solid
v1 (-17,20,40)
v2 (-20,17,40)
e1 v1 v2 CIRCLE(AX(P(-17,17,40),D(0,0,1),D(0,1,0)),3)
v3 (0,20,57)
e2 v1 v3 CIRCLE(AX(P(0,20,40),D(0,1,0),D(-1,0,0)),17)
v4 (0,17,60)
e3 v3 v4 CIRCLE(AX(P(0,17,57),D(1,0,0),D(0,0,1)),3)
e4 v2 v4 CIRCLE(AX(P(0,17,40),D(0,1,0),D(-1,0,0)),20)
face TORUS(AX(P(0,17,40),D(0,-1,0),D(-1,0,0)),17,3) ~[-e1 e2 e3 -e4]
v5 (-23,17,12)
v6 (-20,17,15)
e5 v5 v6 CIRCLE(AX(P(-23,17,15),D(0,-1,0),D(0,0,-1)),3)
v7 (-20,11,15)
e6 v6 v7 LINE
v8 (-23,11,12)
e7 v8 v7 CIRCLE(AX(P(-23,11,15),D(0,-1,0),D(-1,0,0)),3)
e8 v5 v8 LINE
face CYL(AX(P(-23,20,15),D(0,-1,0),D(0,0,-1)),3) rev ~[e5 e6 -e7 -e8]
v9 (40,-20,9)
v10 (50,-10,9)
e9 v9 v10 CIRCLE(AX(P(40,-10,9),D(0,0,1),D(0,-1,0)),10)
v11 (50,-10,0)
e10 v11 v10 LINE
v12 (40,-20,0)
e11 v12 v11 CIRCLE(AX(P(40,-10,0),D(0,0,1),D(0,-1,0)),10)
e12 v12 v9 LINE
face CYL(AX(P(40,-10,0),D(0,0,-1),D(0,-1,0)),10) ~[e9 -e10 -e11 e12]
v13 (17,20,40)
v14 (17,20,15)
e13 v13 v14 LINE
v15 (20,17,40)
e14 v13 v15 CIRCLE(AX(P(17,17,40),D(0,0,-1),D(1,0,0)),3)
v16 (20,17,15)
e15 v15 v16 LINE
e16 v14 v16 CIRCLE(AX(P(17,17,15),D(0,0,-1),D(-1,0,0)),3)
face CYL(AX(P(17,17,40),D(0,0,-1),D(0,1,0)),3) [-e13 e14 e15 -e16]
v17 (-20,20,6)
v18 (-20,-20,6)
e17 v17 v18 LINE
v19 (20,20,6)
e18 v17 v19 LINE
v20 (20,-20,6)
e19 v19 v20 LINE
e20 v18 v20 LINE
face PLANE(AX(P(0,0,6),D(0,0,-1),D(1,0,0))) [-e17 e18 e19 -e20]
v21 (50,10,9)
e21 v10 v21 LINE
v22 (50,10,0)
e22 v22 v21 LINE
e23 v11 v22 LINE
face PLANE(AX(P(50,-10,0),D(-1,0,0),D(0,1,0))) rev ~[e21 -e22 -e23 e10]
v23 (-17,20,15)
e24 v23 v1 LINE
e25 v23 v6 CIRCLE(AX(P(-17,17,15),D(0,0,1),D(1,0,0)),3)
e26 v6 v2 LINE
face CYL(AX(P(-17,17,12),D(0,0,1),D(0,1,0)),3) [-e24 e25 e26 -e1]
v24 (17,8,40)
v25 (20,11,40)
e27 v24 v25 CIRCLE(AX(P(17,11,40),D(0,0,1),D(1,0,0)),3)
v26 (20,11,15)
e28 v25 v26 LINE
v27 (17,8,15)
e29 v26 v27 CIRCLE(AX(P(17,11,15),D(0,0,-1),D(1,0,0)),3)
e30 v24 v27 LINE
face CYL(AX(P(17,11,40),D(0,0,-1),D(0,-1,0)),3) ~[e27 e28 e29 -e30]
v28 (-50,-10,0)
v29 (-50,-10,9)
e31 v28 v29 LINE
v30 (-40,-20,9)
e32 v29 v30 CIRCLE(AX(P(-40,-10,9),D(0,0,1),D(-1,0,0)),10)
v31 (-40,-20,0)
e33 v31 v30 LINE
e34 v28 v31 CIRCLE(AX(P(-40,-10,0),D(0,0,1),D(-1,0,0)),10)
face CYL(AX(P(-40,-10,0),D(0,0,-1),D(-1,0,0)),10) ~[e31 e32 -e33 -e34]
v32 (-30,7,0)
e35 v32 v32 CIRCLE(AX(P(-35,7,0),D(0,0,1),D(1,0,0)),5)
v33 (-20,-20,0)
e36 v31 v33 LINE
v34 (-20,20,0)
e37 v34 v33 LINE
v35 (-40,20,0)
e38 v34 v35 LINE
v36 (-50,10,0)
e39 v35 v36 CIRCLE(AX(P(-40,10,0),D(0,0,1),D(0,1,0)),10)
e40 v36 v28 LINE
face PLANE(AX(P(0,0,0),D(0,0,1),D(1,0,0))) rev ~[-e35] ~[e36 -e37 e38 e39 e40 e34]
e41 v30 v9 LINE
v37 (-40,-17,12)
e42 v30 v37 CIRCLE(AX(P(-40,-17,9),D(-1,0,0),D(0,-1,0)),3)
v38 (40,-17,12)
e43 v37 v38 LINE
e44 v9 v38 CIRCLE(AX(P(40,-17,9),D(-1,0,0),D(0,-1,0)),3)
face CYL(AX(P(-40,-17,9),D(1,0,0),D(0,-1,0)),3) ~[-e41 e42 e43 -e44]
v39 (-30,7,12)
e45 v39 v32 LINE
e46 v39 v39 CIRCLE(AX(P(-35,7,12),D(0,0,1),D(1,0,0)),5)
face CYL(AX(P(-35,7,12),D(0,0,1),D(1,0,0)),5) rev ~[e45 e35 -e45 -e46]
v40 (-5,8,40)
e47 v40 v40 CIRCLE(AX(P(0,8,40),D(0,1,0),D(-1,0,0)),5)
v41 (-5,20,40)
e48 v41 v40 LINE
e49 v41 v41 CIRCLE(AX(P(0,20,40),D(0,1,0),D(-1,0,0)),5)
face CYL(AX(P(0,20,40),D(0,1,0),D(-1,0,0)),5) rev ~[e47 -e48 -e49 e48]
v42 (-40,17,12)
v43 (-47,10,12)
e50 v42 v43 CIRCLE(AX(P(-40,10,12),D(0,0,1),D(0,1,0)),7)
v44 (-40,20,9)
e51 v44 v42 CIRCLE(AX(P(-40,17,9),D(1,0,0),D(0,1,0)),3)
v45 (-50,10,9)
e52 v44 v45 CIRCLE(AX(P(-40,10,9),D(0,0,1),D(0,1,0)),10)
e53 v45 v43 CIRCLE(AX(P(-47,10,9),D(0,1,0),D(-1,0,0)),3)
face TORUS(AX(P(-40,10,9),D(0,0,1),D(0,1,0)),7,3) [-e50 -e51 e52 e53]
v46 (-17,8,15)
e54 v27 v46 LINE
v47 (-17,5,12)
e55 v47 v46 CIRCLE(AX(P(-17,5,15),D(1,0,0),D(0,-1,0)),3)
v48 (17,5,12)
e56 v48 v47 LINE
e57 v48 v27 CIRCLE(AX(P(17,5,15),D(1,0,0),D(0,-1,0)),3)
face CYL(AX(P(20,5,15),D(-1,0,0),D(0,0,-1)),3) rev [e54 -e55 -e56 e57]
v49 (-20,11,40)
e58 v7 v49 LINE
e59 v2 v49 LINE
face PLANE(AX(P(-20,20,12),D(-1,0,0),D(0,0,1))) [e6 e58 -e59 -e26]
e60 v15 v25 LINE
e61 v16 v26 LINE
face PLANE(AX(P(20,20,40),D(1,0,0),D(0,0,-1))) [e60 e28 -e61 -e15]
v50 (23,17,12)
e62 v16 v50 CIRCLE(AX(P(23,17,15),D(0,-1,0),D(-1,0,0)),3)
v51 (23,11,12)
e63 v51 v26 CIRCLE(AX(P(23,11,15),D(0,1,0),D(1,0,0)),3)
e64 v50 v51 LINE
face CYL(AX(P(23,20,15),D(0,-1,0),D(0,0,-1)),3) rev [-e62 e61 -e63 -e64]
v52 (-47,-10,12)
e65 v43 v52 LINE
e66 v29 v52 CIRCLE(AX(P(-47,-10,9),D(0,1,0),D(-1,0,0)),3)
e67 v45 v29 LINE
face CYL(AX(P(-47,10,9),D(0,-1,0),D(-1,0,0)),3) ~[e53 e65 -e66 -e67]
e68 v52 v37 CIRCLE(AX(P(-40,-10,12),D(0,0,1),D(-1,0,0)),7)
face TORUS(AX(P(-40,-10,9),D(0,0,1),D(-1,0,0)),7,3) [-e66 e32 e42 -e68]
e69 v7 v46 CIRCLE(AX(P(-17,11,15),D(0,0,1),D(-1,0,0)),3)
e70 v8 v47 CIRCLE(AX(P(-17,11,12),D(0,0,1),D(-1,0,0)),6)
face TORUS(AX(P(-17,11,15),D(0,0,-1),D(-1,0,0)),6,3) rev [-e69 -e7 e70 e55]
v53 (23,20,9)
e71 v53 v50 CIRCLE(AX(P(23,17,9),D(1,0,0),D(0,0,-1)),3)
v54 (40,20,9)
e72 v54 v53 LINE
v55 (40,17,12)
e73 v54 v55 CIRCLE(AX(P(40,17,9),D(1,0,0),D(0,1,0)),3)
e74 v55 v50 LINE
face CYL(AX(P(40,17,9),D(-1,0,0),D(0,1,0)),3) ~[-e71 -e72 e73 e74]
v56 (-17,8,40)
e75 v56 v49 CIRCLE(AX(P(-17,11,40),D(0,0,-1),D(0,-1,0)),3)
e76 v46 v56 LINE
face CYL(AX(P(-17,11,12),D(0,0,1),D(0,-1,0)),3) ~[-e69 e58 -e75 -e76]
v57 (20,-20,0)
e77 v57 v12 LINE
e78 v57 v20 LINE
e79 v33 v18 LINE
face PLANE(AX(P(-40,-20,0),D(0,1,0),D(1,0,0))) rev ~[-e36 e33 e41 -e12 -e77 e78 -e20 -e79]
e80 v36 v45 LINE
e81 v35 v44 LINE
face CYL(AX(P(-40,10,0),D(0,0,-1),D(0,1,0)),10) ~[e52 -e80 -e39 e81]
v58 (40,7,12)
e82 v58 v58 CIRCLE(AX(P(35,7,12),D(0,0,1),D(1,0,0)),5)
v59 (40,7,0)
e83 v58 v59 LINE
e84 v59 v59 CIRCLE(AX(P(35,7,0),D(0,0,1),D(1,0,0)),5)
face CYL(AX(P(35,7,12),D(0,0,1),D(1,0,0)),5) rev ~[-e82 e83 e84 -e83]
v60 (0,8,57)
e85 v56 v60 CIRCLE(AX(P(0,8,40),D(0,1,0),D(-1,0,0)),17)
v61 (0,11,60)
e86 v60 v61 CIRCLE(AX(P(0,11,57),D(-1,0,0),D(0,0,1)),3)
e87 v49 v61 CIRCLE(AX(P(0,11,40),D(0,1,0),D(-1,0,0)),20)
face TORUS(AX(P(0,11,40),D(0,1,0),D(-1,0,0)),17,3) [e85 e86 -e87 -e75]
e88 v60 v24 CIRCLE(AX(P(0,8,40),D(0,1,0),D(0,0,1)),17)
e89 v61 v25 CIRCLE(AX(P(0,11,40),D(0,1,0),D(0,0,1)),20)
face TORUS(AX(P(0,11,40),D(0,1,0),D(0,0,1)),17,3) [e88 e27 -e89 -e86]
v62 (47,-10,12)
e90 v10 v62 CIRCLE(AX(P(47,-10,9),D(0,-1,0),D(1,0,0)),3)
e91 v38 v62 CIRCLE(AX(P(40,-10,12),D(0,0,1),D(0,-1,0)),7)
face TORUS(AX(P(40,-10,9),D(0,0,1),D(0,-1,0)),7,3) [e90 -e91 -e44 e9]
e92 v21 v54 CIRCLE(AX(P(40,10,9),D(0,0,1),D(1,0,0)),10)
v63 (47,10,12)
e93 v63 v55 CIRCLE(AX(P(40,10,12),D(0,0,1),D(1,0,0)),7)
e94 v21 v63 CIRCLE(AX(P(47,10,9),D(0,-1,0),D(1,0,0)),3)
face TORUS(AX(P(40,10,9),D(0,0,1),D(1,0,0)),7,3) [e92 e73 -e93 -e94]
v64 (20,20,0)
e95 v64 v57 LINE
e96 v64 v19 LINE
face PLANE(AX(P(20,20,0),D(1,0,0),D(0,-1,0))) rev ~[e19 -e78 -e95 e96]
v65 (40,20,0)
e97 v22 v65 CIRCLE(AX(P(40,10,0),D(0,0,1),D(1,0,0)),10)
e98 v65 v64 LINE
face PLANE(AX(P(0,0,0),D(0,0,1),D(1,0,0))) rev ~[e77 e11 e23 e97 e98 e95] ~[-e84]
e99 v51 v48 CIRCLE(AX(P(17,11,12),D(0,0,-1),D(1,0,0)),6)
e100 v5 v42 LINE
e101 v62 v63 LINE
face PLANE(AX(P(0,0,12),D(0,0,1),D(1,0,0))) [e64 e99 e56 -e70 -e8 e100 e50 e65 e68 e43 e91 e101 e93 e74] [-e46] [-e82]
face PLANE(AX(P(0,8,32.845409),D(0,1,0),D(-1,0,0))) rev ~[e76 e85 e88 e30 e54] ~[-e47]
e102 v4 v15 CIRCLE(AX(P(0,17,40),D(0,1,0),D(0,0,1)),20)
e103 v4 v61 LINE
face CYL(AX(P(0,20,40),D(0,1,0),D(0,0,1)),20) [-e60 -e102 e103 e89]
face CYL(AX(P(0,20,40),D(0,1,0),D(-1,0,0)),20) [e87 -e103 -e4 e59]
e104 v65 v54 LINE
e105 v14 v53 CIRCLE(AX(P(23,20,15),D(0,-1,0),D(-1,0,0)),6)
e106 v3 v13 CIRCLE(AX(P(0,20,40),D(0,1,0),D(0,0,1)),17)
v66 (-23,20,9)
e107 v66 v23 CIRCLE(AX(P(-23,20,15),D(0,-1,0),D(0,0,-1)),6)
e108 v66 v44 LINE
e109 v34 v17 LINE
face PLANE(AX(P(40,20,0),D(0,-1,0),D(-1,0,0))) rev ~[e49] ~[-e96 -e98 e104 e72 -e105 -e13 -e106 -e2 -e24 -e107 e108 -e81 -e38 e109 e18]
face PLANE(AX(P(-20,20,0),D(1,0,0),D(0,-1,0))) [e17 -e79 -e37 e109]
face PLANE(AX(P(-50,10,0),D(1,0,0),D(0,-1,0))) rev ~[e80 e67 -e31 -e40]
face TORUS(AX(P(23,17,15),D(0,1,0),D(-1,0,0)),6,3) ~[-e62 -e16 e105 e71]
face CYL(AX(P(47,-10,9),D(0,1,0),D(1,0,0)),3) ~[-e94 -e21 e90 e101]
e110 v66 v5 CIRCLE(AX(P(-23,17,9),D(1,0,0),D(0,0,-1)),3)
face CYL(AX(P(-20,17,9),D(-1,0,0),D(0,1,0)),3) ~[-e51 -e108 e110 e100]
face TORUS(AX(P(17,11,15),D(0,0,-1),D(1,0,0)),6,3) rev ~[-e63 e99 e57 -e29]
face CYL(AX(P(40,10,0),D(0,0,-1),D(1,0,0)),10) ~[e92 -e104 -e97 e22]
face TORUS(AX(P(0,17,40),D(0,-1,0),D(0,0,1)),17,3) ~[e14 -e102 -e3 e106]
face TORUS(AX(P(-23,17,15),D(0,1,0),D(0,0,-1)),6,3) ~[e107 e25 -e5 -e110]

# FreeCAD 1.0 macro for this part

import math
import FreeCAD as App
import Part
import Sketcher
from FreeCAD import Vector
Q = App.Units.Quantity


def edges_at(feature, points):
    """Names of the edges that pass closest to the given points."""
    edges = feature.Shape.Edges
    near = lambda p: min(range(len(edges)), key=lambda i: edges[i].distToShape(Part.Vertex(*p))[0])
    return sorted({f"Edge{near(p) + 1}" for p in points})


def add_polygon(sketch, points):
    """Adds a closed chain of lines whose ends are joined by coincident constraints."""
    first, n = sketch.GeometryCount, len(points)
    for a, b in zip(points, points[1:] + points[:1]):
        sketch.addGeometry(Part.LineSegment(App.Vector(*a, 0), App.Vector(*b, 0)), False)
    for i in range(n):
        sketch.addConstraint(Sketcher.Constraint("Coincident", first + i, 2, first + (i + 1) % n, 1))

doc = App.newDocument("Part")
body = doc.addObject("PartDesign::Body", "Body")

# Sketch on XY plane
sketch1 = doc.addObject("Sketcher::SketchObject", "Sketch")
body.addObject(sketch1)
sketch1.AttachmentSupport = (doc.XY_Plane, [""])
sketch1.MapMode = "FlatFace"
sketch1.addGeometry([
    Part.LineSegment(Vector(40, 20, 0), Vector(-40, 20, 0)),  # 0
    Part.ArcOfCircle(Part.Circle(Vector(-40, 10, 0), Vector(0, 0, 1), 10), math.radians(90), math.radians(180)),  # 1
    Part.LineSegment(Vector(-50, 10, 0), Vector(-50, -10, 0)),  # 2
    Part.ArcOfCircle(Part.Circle(Vector(-40, -10, 0), Vector(0, 0, 1), 10), math.radians(180), math.radians(270)),  # 3
    Part.LineSegment(Vector(-40, -20, 0), Vector(40, -20, 0)),  # 4
    Part.ArcOfCircle(Part.Circle(Vector(40, -10, 0), Vector(0, 0, 1), 10), math.radians(-90), math.radians(0)),  # 5
    Part.LineSegment(Vector(50, -10, 0), Vector(50, 10, 0)),  # 6
    Part.ArcOfCircle(Part.Circle(Vector(40, 10, 0), Vector(0, 0, 1), 10), math.radians(0), math.radians(90)),  # 7
], False)
sketch1.addConstraint([
    Sketcher.Constraint("Tangent", 0, 2, 1, 1),
    Sketcher.Constraint("Tangent", 1, 2, 2, 1),
    Sketcher.Constraint("Tangent", 2, 2, 3, 1),
    Sketcher.Constraint("Tangent", 3, 2, 4, 1),
    Sketcher.Constraint("Tangent", 4, 2, 5, 1),
    Sketcher.Constraint("Tangent", 5, 2, 6, 1),
    Sketcher.Constraint("Tangent", 6, 2, 7, 1),
    Sketcher.Constraint("Tangent", 7, 2, 0, 1),
    Sketcher.Constraint("Horizontal", 0),
    Sketcher.Constraint("Vertical", 2),
    Sketcher.Constraint("Horizontal", 4),
    Sketcher.Constraint("Vertical", 6),
    Sketcher.Constraint("Equal", 1, 3),
    Sketcher.Constraint("Equal", 3, 5),
    Sketcher.Constraint("Equal", 5, 7),
    Sketcher.Constraint("Symmetric", 1, 3, 5, 3, -1, 1),
    Sketcher.Constraint("Radius", 1, Q("10 mm")),
    Sketcher.Constraint("DistanceX", 0, 2, 0, 1, Q("80 mm")),
    Sketcher.Constraint("DistanceY", 2, 2, 2, 1, Q("20 mm")),
])
pad1 = doc.addObject("PartDesign::Pad", "Pad")
body.addObject(pad1)
pad1.Profile = sketch1
pad1.Length = 12

# Sketch on XY plane
sketch2 = doc.addObject("Sketcher::SketchObject", "Sketch001")
body.addObject(sketch2)
sketch2.AttachmentSupport = (doc.XY_Plane, [""])
sketch2.MapMode = "FlatFace"
add_polygon(sketch2, [(-20, -20), (-20, 20), (20, 20), (20, -20)])  # lines 0-3
sketch2.addConstraint([
    Sketcher.Constraint("Vertical", 0),
    Sketcher.Constraint("Horizontal", 1),
    Sketcher.Constraint("Vertical", 2),
    Sketcher.Constraint("Horizontal", 3),
    Sketcher.Constraint("Symmetric", 0, 2, 2, 2, -1, 1),
    Sketcher.Constraint("Equal", 3, 0),
    Sketcher.Constraint("DistanceX", 1, 1, 1, 2, Q("40 mm")),
])
pocket1 = doc.addObject("PartDesign::Pocket", "Pocket")
body.addObject(pocket1)
pocket1.Profile = sketch2
pocket1.Length = 6
pocket1.Reversed = True

# Sketch on XY plane
sketch3 = doc.addObject("Sketcher::SketchObject", "Sketch002")
body.addObject(sketch3)
sketch3.AttachmentSupport = (doc.XY_Plane, [""])
sketch3.MapMode = "FlatFace"
sketch3.AttachmentOffset = App.Placement(Vector(0, 0, 12), App.Rotation())
sketch3.addGeometry([
    Part.Circle(Vector(-35, 7, 0), Vector(0, 0, 1), 5),
    Part.Circle(Vector(35, 7, 0), Vector(0, 0, 1), 5),
], False)
sketch3.addConstraint([
    Sketcher.Constraint("Equal", 0, 1),
    Sketcher.Constraint("Symmetric", 0, 3, 1, 3, -2),
    Sketcher.Constraint("Diameter", 0, Q("10 mm")),
    Sketcher.Constraint("DistanceX", 0, 3, -1, 1, Q("35 mm")),
    Sketcher.Constraint("DistanceY", -1, 1, 0, 3, Q("7 mm")),
])
pocket2 = doc.addObject("PartDesign::Pocket", "Pocket001")
body.addObject(pocket2)
pocket2.Profile = sketch3
pocket2.Length = 25
body2 = doc.addObject("PartDesign::Body", "Body001")

# Sketch on XZ plane
sketch4 = doc.addObject("Sketcher::SketchObject", "Sketch003")
body2.addObject(sketch4)
sketch4.AttachmentSupport = (doc.getObject("XZ_Plane001"), [""])
sketch4.MapMode = "FlatFace"
sketch4.AttachmentOffset = App.Placement(Vector(0, 0, -20), App.Rotation())
sketch4.addGeometry([
    Part.LineSegment(Vector(20, 12, 0), Vector(-20, 12, 0)),  # 0
    Part.LineSegment(Vector(-20, 12, 0), Vector(-20, 40, 0)),  # 1
    Part.ArcOfCircle(Part.Circle(Vector(0, 40, 0), Vector(0, 0, 1), 20), math.radians(90), math.radians(180)),  # 2
    Part.ArcOfCircle(Part.Circle(Vector(0, 40, 0), Vector(0, 0, 1), 20), math.radians(0), math.radians(90)),  # 3
    Part.LineSegment(Vector(20, 40, 0), Vector(20, 12, 0)),  # 4
    Part.Circle(Vector(0, 40, 0), Vector(0, 0, 1), 5),  # 5
], False)
sketch4.addConstraint([
    Sketcher.Constraint("Coincident", 0, 2, 1, 1),
    Sketcher.Constraint("Tangent", 1, 2, 2, 2),
    Sketcher.Constraint("Tangent", 2, 1, 3, 2),
    Sketcher.Constraint("Tangent", 3, 1, 4, 1),
    Sketcher.Constraint("Coincident", 4, 2, 0, 1),
    Sketcher.Constraint("Horizontal", 0),
    Sketcher.Constraint("Vertical", 1),
    Sketcher.Constraint("Vertical", 4),
    Sketcher.Constraint("Coincident", 5, 3, 2, 3),
    Sketcher.Constraint("Equal", 2, 3),
    Sketcher.Constraint("PointOnObject", 2, 3, -2),
    Sketcher.Constraint("PointOnObject", 2, 1, -2),
    Sketcher.Constraint("Diameter", 5, Q("10 mm")),
    Sketcher.Constraint("Radius", 2, Q("20 mm")),
    Sketcher.Constraint("DistanceY", 1, 1, 1, 2, Q("28 mm")),
    Sketcher.Constraint("DistanceY", -1, 1, 2, 3, Q("40 mm")),
])
pad2 = doc.addObject("PartDesign::Pad", "Pad001")
body2.addObject(pad2)
pad2.Profile = sketch4
pad2.Length = 12
doc.recompute()

boolean = doc.addObject("PartDesign::Boolean", "Boolean")
body2.addObject(boolean)
boolean.Type = "Fuse"
boolean.addObjects([body])
doc.recompute()

fillet = doc.addObject("PartDesign::Fillet", "Fillet")
body2.addObject(fillet)
fillet.Base = (boolean, edges_at(boolean, [
    (-20, 20, 26),
    (-20, 14, 12),
    (-30, 20, 12),
    (0, 8, 12),
    (20, 8, 26),
    (20, 14, 12),
]))
fillet.Radius = 3

doc.recompute()
